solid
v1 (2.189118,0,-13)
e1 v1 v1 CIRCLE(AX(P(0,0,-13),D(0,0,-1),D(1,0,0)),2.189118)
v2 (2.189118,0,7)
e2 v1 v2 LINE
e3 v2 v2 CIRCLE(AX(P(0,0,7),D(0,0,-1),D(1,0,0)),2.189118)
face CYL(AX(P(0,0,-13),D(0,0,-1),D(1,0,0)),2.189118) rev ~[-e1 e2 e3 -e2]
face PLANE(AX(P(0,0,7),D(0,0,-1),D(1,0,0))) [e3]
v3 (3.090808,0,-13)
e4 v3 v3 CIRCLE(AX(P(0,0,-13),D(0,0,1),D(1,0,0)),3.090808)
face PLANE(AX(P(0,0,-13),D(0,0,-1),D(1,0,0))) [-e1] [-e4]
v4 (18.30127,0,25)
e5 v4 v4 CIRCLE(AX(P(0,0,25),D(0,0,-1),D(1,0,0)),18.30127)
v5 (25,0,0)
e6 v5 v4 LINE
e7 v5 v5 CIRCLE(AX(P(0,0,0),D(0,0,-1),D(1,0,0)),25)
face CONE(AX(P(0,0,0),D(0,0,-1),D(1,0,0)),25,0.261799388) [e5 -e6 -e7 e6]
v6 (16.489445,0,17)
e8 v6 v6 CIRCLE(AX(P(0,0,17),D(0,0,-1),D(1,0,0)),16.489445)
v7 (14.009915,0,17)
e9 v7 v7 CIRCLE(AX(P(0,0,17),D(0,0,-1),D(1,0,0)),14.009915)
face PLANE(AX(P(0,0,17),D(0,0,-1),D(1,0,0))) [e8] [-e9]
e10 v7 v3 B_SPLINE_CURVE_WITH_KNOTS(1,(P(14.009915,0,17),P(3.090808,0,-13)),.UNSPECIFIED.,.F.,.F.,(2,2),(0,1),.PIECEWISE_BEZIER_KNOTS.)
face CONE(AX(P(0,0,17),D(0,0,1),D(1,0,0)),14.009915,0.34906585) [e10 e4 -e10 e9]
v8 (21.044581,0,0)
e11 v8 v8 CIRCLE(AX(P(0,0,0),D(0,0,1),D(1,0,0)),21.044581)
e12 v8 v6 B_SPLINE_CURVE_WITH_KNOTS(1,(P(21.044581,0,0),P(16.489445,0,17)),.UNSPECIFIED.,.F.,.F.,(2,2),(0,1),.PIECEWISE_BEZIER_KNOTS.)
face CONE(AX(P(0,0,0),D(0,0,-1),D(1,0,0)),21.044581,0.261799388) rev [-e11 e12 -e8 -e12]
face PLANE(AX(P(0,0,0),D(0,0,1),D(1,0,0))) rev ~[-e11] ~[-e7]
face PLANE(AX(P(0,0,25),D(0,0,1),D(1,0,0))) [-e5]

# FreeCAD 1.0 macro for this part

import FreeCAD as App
import Part
import Sketcher

doc = App.newDocument("Part")
body = doc.addObject("PartDesign::Body", "Body")

sketch1 = body.newObject("Sketcher::SketchObject", "Sketch")
sketch1.AttachmentSupport = (doc.getObject("XY_Plane"), [""])
sketch1.MapMode = "FlatFace"
sketch1.addGeometry(Part.Circle(App.Vector(0, 0, 0), App.Vector(0, 0, 1), 25), False)
sketch1.addConstraint([
    Sketcher.Constraint("Coincident", 0, 3, -1, 1),
    Sketcher.Constraint("Diameter", 0, 50.0),
])
pad1 = body.newObject("PartDesign::Pad", "Pad")
pad1.Profile = sketch1
pad1.Length = 25
pad1.TaperAngle = -15

sketch2 = body.newObject("Sketcher::SketchObject", "Sketch001")
sketch2.AttachmentSupport = (doc.getObject("XY_Plane"), [""])
sketch2.MapMode = "FlatFace"
sketch2.addGeometry(Part.Circle(App.Vector(0, 0, 0), App.Vector(0, 0, 1), 21.044581), False)
sketch2.addConstraint([
    Sketcher.Constraint("Coincident", 0, 3, -1, 1),
    Sketcher.Constraint("Diameter", 0, 42.089162),
])
pocket1 = body.newObject("PartDesign::Pocket", "Pocket")
pocket1.Profile = sketch2
pocket1.Length = 17
pocket1.Reversed = True
pocket1.TaperAngle = -15

sketch3 = body.newObject("Sketcher::SketchObject", "Sketch002")
sketch3.AttachmentSupport = (doc.getObject("XY_Plane"), [""])
sketch3.MapMode = "FlatFace"
sketch3.AttachmentOffset = App.Placement(App.Vector(0, 0, 17), App.Rotation())
sketch3.addGeometry(Part.Circle(App.Vector(0, 0, 0), App.Vector(0, 0, 1), 14.009915), False)
sketch3.addConstraint([
    Sketcher.Constraint("Coincident", 0, 3, -1, 1),
    Sketcher.Constraint("Diameter", 0, 28.01983),
])
pad2 = body.newObject("PartDesign::Pad", "Pad001")
pad2.Profile = sketch3
pad2.Length = 30
pad2.Reversed = True
pad2.TaperAngle = -20

sketch4 = body.newObject("Sketcher::SketchObject", "Sketch003")
sketch4.AttachmentSupport = (doc.getObject("XY_Plane"), [""])
sketch4.MapMode = "FlatFace"
sketch4.AttachmentOffset = App.Placement(App.Vector(0, 0, -13), App.Rotation())
sketch4.addGeometry(Part.Circle(App.Vector(0, 0, 0), App.Vector(0, 0, 1), 2.189118), False)
sketch4.addConstraint([
    Sketcher.Constraint("Coincident", 0, 3, -1, 1),
    Sketcher.Constraint("Diameter", 0, 4.378236),
])
pocket2 = body.newObject("PartDesign::Pocket", "Pocket001")
pocket2.Profile = sketch4
pocket2.Length = 20
pocket2.Reversed = True

doc.recompute()
